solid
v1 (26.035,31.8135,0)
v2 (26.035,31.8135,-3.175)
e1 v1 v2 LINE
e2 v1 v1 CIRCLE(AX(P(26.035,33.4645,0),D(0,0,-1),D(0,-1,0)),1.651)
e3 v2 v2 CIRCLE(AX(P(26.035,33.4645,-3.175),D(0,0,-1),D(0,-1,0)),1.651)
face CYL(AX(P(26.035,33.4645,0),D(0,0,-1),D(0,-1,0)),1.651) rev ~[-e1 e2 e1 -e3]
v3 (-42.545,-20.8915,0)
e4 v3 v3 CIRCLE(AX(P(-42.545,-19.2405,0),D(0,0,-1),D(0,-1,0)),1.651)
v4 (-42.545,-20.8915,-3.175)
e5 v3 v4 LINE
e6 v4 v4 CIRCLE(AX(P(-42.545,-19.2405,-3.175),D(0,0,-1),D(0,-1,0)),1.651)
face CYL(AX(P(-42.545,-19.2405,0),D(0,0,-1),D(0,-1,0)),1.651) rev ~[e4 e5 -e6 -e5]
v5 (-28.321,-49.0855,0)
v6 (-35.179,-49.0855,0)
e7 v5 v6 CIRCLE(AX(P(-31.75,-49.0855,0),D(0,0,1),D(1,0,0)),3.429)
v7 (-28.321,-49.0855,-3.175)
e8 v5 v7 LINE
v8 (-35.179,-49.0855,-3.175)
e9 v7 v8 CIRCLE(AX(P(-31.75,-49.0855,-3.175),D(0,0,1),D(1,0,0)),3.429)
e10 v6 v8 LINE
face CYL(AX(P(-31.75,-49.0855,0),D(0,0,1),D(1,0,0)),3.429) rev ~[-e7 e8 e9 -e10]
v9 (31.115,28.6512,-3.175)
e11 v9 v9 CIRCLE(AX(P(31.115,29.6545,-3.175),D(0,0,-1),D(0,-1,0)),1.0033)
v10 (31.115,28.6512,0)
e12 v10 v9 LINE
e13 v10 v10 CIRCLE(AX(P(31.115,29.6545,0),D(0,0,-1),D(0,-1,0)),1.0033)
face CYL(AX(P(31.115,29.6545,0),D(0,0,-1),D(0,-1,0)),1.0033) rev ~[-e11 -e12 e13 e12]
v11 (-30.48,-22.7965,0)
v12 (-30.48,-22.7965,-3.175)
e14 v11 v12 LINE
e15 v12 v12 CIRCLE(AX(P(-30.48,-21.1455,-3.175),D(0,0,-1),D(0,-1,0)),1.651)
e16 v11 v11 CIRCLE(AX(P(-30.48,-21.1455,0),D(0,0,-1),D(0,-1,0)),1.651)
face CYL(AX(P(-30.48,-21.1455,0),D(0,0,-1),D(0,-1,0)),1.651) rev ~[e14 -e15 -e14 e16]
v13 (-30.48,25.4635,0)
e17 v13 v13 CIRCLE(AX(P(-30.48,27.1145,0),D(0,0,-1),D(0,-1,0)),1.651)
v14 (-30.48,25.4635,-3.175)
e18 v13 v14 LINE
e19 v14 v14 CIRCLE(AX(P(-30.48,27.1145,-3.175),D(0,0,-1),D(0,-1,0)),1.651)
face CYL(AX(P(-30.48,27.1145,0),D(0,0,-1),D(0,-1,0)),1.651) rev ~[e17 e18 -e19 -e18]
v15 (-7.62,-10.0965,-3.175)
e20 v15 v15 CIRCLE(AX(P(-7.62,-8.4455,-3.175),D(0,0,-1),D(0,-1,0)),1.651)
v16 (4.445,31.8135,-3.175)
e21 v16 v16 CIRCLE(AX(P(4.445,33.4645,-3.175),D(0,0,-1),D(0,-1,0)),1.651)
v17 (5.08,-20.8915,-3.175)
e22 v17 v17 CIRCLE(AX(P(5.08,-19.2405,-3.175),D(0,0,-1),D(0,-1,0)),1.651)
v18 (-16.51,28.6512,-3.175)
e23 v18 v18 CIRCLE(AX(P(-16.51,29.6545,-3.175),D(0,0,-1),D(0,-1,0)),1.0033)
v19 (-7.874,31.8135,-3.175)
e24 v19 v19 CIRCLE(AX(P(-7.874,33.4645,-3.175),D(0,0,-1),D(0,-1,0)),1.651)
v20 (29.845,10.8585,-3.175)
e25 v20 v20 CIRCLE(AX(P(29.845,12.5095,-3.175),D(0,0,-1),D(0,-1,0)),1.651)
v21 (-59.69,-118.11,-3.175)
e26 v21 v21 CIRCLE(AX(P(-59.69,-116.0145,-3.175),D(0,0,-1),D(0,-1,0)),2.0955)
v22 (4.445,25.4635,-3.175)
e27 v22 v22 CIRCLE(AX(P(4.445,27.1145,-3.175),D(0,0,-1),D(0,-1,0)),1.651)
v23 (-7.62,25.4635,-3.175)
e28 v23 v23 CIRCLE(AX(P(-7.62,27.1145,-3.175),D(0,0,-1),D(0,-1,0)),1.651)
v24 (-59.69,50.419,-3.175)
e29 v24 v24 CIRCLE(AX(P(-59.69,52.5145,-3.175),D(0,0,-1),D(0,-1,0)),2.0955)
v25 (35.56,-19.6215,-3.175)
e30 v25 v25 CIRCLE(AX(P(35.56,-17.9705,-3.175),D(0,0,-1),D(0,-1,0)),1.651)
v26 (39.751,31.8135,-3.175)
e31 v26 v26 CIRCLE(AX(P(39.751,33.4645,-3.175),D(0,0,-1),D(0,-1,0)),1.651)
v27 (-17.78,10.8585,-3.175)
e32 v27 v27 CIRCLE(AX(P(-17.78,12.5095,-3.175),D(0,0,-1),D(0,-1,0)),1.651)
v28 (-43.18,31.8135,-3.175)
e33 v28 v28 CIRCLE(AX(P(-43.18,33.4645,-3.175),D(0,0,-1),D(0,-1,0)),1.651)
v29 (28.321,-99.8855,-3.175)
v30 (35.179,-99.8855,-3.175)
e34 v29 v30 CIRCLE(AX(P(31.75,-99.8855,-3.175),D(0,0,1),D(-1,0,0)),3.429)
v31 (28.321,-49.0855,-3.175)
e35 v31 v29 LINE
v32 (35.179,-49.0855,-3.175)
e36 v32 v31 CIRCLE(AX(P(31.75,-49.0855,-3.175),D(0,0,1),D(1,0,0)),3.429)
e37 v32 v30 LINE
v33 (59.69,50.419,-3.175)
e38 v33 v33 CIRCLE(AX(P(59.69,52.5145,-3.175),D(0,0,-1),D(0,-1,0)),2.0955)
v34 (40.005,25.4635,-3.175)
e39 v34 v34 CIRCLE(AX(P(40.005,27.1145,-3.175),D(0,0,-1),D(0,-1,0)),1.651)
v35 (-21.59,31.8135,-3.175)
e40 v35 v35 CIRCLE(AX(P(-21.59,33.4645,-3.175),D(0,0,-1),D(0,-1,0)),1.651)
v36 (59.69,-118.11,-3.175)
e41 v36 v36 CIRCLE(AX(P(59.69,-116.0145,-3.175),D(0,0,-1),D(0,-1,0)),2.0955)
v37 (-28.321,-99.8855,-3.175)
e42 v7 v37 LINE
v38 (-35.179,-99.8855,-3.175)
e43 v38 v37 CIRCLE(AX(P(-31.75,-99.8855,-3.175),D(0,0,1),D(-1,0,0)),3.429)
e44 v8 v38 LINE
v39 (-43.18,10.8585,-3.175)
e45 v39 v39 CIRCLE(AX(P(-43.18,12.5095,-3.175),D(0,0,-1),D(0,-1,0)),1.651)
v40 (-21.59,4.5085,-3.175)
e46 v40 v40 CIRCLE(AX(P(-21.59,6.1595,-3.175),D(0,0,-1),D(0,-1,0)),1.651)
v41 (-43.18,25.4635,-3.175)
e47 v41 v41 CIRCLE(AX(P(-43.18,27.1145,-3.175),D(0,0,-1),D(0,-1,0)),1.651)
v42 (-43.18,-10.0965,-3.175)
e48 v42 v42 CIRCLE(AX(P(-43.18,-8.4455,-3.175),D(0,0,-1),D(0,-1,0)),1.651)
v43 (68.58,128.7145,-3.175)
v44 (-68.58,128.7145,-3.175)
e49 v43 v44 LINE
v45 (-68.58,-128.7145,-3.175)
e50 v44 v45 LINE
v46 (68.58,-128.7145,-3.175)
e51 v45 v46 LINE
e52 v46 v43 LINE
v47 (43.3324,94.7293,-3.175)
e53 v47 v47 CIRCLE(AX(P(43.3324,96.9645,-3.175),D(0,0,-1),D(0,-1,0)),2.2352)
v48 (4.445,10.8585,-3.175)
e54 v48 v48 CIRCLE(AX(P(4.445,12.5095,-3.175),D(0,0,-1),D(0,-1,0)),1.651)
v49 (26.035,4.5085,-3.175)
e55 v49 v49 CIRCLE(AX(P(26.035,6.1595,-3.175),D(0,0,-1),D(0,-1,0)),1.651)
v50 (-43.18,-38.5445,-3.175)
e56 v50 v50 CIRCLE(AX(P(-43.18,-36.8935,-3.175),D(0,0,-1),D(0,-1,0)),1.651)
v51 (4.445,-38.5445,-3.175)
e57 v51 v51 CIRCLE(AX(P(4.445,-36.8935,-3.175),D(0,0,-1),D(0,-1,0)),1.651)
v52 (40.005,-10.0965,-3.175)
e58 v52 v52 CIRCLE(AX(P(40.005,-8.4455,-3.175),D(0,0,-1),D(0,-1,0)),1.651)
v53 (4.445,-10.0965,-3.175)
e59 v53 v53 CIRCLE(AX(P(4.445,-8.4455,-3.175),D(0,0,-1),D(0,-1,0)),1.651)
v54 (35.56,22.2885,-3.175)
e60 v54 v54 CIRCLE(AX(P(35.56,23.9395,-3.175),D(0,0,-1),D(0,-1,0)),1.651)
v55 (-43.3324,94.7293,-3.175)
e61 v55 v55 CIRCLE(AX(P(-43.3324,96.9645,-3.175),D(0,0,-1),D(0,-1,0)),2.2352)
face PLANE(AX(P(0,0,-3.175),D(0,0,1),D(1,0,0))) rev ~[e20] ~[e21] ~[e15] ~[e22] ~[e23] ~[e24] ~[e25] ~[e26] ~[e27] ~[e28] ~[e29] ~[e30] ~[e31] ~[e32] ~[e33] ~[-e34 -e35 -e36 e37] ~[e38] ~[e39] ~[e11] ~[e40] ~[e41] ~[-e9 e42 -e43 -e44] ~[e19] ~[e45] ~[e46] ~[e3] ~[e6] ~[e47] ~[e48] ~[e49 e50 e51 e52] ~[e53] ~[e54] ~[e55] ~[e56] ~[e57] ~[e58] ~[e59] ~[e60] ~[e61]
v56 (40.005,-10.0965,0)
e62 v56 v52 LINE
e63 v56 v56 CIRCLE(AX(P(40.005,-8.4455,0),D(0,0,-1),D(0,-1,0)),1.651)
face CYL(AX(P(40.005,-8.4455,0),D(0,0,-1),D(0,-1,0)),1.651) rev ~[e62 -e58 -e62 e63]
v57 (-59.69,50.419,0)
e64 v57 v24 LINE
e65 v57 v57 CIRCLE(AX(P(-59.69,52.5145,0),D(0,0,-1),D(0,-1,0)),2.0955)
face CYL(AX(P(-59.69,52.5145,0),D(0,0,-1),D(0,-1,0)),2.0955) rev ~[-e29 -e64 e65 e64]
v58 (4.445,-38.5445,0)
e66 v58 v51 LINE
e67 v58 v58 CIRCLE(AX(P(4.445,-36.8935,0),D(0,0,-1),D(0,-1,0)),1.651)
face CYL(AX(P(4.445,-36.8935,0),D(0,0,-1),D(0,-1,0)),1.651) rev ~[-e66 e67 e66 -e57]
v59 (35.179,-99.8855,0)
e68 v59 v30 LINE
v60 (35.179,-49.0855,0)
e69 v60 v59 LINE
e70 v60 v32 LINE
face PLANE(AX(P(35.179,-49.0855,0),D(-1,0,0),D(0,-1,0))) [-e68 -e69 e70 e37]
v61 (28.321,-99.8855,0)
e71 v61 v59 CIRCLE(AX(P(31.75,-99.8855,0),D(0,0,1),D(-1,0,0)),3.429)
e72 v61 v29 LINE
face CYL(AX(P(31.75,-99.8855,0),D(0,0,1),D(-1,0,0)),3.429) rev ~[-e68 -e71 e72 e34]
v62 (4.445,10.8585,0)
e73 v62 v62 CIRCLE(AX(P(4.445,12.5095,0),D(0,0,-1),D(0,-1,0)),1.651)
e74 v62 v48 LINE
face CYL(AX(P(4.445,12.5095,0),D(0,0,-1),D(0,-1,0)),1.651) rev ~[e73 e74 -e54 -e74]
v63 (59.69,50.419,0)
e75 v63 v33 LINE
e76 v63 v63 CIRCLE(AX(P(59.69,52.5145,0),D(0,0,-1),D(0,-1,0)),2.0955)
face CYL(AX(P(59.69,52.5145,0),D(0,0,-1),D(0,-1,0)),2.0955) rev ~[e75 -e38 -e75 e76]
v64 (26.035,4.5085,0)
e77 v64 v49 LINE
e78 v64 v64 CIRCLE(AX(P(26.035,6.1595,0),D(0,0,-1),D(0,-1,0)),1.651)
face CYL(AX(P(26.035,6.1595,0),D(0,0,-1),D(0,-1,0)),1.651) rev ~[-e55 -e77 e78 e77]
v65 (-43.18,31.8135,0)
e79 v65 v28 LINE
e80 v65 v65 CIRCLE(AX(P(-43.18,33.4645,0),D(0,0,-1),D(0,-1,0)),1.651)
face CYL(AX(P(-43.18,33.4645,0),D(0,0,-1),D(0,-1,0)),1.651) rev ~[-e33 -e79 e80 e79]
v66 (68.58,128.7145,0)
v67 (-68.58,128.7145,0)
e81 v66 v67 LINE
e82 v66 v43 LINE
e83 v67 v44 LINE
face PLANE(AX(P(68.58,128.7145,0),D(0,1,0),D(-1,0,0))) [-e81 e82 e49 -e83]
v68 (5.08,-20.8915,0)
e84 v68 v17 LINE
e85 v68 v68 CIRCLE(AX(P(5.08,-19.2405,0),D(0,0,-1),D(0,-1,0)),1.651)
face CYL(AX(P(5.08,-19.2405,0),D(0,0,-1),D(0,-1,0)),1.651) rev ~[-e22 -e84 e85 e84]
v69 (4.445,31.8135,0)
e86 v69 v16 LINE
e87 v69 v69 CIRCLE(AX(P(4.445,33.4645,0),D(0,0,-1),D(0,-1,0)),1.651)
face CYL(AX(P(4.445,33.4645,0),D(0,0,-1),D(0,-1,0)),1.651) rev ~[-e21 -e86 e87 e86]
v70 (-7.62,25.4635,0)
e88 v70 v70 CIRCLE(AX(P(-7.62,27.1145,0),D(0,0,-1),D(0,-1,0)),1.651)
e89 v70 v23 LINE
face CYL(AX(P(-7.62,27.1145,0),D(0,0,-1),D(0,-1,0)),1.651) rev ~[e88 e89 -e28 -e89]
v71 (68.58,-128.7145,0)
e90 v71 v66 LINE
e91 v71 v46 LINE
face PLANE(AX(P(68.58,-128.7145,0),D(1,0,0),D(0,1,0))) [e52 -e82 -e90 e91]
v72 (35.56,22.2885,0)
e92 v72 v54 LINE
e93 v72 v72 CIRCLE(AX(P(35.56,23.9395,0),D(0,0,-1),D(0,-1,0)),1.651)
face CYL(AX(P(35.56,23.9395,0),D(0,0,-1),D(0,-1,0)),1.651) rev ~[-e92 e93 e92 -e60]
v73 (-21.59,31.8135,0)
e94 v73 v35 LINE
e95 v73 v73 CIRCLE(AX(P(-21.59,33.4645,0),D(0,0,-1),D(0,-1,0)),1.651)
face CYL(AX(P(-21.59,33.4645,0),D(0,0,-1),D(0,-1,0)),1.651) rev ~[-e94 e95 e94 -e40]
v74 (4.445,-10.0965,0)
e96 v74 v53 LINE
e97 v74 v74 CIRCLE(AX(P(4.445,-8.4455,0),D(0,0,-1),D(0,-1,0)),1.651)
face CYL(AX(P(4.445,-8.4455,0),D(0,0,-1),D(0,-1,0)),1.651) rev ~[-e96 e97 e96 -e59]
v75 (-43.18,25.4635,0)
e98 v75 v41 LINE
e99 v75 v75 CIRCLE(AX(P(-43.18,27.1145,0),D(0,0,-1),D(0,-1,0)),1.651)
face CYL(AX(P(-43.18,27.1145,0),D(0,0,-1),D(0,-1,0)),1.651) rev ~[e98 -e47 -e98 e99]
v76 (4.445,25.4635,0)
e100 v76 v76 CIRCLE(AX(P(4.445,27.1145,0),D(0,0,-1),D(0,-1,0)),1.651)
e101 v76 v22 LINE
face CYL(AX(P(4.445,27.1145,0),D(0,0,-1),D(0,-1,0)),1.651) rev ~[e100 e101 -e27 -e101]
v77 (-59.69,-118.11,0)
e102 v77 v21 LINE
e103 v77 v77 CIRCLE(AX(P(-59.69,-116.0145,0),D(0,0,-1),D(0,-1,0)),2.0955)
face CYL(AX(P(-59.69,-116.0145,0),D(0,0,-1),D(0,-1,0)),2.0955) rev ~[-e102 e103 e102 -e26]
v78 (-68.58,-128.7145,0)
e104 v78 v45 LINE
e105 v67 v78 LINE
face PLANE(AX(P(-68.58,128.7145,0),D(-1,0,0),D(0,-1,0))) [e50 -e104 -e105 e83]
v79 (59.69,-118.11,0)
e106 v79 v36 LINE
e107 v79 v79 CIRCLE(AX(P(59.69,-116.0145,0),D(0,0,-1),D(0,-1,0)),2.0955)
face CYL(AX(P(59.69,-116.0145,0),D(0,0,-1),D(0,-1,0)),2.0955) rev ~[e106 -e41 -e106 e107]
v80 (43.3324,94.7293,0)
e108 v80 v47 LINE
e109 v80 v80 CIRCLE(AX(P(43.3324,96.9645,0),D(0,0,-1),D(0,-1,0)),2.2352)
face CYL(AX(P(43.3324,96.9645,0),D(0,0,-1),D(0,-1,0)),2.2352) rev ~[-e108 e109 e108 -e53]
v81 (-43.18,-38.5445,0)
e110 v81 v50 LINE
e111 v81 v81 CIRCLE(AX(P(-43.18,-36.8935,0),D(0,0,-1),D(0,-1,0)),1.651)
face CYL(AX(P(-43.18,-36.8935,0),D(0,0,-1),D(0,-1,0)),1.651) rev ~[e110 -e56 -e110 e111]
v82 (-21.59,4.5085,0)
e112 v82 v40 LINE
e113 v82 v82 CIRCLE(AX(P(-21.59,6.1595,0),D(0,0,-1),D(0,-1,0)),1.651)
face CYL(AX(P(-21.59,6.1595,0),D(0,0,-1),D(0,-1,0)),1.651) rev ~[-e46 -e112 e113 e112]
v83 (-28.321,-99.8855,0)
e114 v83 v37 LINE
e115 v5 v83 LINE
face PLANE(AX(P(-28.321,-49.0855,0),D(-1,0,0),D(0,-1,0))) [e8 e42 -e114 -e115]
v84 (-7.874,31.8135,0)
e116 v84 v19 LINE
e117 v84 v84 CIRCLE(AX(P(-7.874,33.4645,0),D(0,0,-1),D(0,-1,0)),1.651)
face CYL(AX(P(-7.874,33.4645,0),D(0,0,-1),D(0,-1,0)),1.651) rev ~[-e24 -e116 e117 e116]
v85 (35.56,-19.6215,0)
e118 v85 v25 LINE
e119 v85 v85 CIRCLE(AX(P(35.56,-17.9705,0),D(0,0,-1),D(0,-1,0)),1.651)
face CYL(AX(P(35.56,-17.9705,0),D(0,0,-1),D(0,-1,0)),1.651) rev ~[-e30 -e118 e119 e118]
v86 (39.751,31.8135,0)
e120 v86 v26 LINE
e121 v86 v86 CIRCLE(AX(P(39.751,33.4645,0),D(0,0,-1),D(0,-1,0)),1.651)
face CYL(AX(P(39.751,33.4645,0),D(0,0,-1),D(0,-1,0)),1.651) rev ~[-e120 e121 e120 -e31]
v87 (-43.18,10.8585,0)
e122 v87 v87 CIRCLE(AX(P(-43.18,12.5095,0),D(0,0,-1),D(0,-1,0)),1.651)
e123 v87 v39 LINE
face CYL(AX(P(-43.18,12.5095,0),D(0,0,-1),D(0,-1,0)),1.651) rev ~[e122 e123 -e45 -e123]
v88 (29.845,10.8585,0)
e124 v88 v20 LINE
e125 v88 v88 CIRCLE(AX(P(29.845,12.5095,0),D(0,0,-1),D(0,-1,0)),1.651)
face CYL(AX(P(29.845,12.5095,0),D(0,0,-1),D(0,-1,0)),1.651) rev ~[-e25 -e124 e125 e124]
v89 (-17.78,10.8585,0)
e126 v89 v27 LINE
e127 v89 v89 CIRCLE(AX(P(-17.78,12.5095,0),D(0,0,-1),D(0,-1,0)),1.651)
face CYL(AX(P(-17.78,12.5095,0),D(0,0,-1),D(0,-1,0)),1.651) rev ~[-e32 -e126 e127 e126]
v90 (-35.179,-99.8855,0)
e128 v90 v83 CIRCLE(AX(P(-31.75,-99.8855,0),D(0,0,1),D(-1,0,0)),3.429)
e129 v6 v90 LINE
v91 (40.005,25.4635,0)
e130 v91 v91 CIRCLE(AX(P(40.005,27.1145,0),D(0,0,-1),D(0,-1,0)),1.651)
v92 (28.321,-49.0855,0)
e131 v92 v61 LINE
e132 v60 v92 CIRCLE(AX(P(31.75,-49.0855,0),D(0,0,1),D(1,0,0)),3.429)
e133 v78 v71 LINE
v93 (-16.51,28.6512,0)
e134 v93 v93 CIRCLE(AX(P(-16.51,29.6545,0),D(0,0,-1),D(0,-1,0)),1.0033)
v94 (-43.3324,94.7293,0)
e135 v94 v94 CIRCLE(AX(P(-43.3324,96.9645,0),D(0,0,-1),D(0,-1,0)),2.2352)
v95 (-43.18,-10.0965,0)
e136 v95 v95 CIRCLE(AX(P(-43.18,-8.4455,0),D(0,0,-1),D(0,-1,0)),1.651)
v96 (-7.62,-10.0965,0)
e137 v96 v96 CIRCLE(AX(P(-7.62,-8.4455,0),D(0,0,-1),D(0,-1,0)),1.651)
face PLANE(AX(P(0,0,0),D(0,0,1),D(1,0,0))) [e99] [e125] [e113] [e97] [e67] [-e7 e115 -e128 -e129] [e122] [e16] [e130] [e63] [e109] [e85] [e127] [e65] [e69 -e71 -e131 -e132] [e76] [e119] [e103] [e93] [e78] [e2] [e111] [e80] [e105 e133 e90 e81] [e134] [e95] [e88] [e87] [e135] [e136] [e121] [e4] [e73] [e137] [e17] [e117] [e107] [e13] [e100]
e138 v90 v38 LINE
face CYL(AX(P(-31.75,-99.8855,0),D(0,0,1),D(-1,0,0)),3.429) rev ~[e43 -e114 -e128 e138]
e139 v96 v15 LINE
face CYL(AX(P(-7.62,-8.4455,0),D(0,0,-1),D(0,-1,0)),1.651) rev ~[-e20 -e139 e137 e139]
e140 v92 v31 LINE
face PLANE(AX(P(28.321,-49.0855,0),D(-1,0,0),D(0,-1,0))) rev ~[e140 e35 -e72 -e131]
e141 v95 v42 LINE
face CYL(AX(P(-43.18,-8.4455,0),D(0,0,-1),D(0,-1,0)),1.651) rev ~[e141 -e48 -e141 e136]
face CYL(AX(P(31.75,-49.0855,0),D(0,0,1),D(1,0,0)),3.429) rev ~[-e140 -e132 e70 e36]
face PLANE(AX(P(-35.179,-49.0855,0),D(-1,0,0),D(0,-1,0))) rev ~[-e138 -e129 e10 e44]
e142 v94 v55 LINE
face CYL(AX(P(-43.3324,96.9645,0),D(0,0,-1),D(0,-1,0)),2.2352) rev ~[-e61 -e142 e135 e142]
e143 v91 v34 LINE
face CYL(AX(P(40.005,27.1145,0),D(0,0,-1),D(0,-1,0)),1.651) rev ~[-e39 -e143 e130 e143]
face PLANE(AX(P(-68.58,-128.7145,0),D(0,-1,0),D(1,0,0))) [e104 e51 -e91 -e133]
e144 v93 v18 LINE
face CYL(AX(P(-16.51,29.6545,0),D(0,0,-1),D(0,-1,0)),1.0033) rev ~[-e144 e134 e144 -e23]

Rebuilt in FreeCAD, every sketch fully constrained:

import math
import FreeCAD as App
import Part
import Sketcher

V = App.Vector
Q = App.Units.Quantity


def add_polygon(sketch, points):
    """Adds a closed chain of lines whose ends are joined by coincident constraints."""
    first, n = sketch.GeometryCount, len(points)
    for a, b in zip(points, points[1:] + points[:1]):
        sketch.addGeometry(Part.LineSegment(App.Vector(*a, 0), App.Vector(*b, 0)), False)
    for i in range(n):
        sketch.addConstraint(Sketcher.Constraint("Coincident", first + i, 2, first + (i + 1) % n, 1))

doc = App.newDocument("Part")
body = doc.addObject("PartDesign::Body", "Body")

# Sketch on XY plane
sketch1 = doc.addObject("Sketcher::SketchObject", "Sketch")
body.addObject(sketch1)
sketch1.AttachmentSupport = (doc.XY_Plane, [""])
sketch1.MapMode = "FlatFace"
add_polygon(sketch1, [(-68.58, 128.7145), (-68.58, -128.7145), (68.58, -128.7145), (68.58, 128.7145)])  # lines 0-3
sketch1.addConstraint([
    Sketcher.Constraint("Vertical", 0),
    Sketcher.Constraint("Horizontal", 1),
    Sketcher.Constraint("Vertical", 2),
    Sketcher.Constraint("Horizontal", 3),
    Sketcher.Constraint("Symmetric", 0, 2, 2, 2, -1, 1),
    Sketcher.Constraint("DistanceX", 1, 1, 1, 2, Q("5.4 in")),
    Sketcher.Constraint("DistanceY", 0, 2, 0, 1, Q("10.135 in")),
])
pad1 = doc.addObject("PartDesign::Pad", "Pad")
body.addObject(pad1)
pad1.Profile = sketch1
pad1.Length = Q("0.125 in")
pad1.Reversed = True

# Sketch on XY plane
sketch2 = doc.addObject("Sketcher::SketchObject", "Sketch001")
body.addObject(sketch2)
sketch2.AttachmentSupport = (doc.XY_Plane, [""])
sketch2.MapMode = "FlatFace"
sketch2.addGeometry([
    Part.Circle(V(-59.69, 52.5145, 0), V(0, 0, 1), 2.0955),
    Part.Circle(V(59.69, 52.5145, 0), V(0, 0, 1), 2.0955),
    Part.Circle(V(-59.69, -116.0145, 0), V(0, 0, 1), 2.0955),
    Part.Circle(V(59.69, -116.0145, 0), V(0, 0, 1), 2.0955),
], False)
sketch2.addConstraint([
    Sketcher.Constraint("Equal", 0, 1),
    Sketcher.Constraint("Equal", 1, 2),
    Sketcher.Constraint("Equal", 2, 3),
    Sketcher.Constraint("Symmetric", 0, 3, 1, 3, -2),
    Sketcher.Constraint("Symmetric", 2, 3, 3, 3, -2),
    Sketcher.Constraint("Vertical", 0, 3, 2, 3),
    Sketcher.Constraint("Diameter", 0, Q("0.165 in")),
    Sketcher.Constraint("DistanceX", 0, 3, 1, 3, Q("4.7 in")),
    Sketcher.Constraint("DistanceY", 2, 3, 0, 3, Q("6.635 in")),
    Sketcher.Constraint("DistanceY", -1, 1, 0, 3, Q("2.0675 in")),
])
doc.recompute()
hole = doc.addObject("PartDesign::Hole", "Hole")
body.addObject(hole)
hole.Profile = sketch2
hole.ThreadType = "None"
hole.Diameter = Q("0.165 in")
hole.DepthType = "ThroughAll"

# Sketch on XY plane
sketch3 = doc.addObject("Sketcher::SketchObject", "Sketch002")
body.addObject(sketch3)
sketch3.AttachmentSupport = (doc.XY_Plane, [""])
sketch3.MapMode = "FlatFace"
sketch3.addGeometry([
    Part.ArcOfCircle(Part.Circle(V(-31.75, -49.0855, 0), V(0, 0, 1), 3.429), math.radians(0), math.radians(180)),  # 0
    Part.LineSegment(V(-35.179, -49.0855, 0), V(-35.179, -99.8855, 0)),  # 1
    Part.ArcOfCircle(Part.Circle(V(-31.75, -99.8855, 0), V(0, 0, 1), 3.429), math.radians(180), math.radians(360)),  # 2
    Part.LineSegment(V(-28.321, -99.8855, 0), V(-28.321, -49.0855, 0)),  # 3
    Part.ArcOfCircle(Part.Circle(V(31.75, -49.0855, 0), V(0, 0, 1), 3.429), math.radians(0), math.radians(180)),  # 4
    Part.LineSegment(V(28.321, -49.0855, 0), V(28.321, -99.8855, 0)),  # 5
    Part.ArcOfCircle(Part.Circle(V(31.75, -99.8855, 0), V(0, 0, 1), 3.429), math.radians(180), math.radians(360)),  # 6
    Part.LineSegment(V(35.179, -99.8855, 0), V(35.179, -49.0855, 0)),  # 7
], False)
sketch3.addConstraint([
    Sketcher.Constraint("Tangent", 0, 2, 1, 1),
    Sketcher.Constraint("Tangent", 1, 2, 2, 1),
    Sketcher.Constraint("Tangent", 2, 2, 3, 1),
    Sketcher.Constraint("Tangent", 3, 2, 0, 1),
    Sketcher.Constraint("Tangent", 4, 2, 5, 1),
    Sketcher.Constraint("Tangent", 5, 2, 6, 1),
    Sketcher.Constraint("Tangent", 6, 2, 7, 1),
    Sketcher.Constraint("Tangent", 7, 2, 4, 1),
    Sketcher.Constraint("Vertical", 1),
    Sketcher.Constraint("Vertical", 3),
    Sketcher.Constraint("Vertical", 5),
    Sketcher.Constraint("Vertical", 7),
    Sketcher.Constraint("Equal", 2, 4),
    Sketcher.Constraint("Symmetric", 0, 3, 4, 3, -2),
    Sketcher.Constraint("Horizontal", 2, 3, 6, 3),
    Sketcher.Constraint("DistanceY", 1, 2, 1, 1, Q("2 in")),
    Sketcher.Constraint("Radius", 0, Q("0.135 in")),
    Sketcher.Constraint("DistanceX", 0, 3, 4, 3, Q("2.5 in")),
    Sketcher.Constraint("DistanceY", 0, 3, -1, 1, Q("1.9325 in")),
])
pocket1 = doc.addObject("PartDesign::Pocket", "Pocket")
body.addObject(pocket1)
pocket1.Profile = sketch3
pocket1.Length = Q("0.125 in")

# Sketch on XY plane
sketch4 = doc.addObject("Sketcher::SketchObject", "Sketch003")
body.addObject(sketch4)
sketch4.AttachmentSupport = (doc.XY_Plane, [""])
sketch4.MapMode = "FlatFace"
sketch4.addGeometry([
    Part.Circle(V(-43.3324, 96.9645, 0), V(0, 0, 1), 2.2352),
    Part.Circle(V(43.3324, 96.9645, 0), V(0, 0, 1), 2.2352),
], False)
sketch4.addConstraint([
    Sketcher.Constraint("Equal", 0, 1),
    Sketcher.Constraint("Symmetric", 0, 3, 1, 3, -2),
    Sketcher.Constraint("Diameter", 0, Q("0.176 in")),
    Sketcher.Constraint("DistanceX", 0, 3, -1, 1, Q("1.706 in")),
    Sketcher.Constraint("DistanceY", -1, 1, 0, 3, Q("3.8175 in")),
])
doc.recompute()
hole2 = doc.addObject("PartDesign::Hole", "Hole001")
body.addObject(hole2)
hole2.Profile = sketch4
hole2.ThreadType = "None"
hole2.Diameter = Q("0.176 in")
hole2.DepthType = "ThroughAll"

# Sketch on XY plane
sketch5 = doc.addObject("Sketcher::SketchObject", "Sketch004")
body.addObject(sketch5)
sketch5.AttachmentSupport = (doc.XY_Plane, [""])
sketch5.MapMode = "FlatFace"
sketch5.addGeometry([
    Part.Circle(V(-43.18, 27.1145, 0), V(0, 0, 1), 1.651),  # 0
    Part.Circle(V(-43.18, -8.4455, 0), V(0, 0, 1), 1.651),  # 1
    Part.Circle(V(-7.62, -8.4455, 0), V(0, 0, 1), 1.651),  # 2
    Part.Circle(V(-7.62, 27.1145, 0), V(0, 0, 1), 1.651),  # 3
    Part.Circle(V(4.445, 27.1145, 0), V(0, 0, 1), 1.651),  # 4
    Part.Circle(V(4.445, -8.4455, 0), V(0, 0, 1), 1.651),  # 5
    Part.Circle(V(40.005, -8.4455, 0), V(0, 0, 1), 1.651),  # 6
    Part.Circle(V(40.005, 27.1145, 0), V(0, 0, 1), 1.651),  # 7
], False)
sketch5.addConstraint([
    Sketcher.Constraint("Equal", 0, 1),
    Sketcher.Constraint("Equal", 1, 2),
    Sketcher.Constraint("Equal", 2, 3),
    Sketcher.Constraint("Equal", 3, 4),
    Sketcher.Constraint("Equal", 4, 5),
    Sketcher.Constraint("Equal", 5, 6),
    Sketcher.Constraint("Equal", 6, 7),
    Sketcher.Constraint("Horizontal", 1, 3, 2, 3),
    Sketcher.Constraint("Horizontal", 0, 3, 3, 3),
    Sketcher.Constraint("Horizontal", 3, 3, 4, 3),
    Sketcher.Constraint("Horizontal", 2, 3, 5, 3),
    Sketcher.Constraint("Horizontal", 5, 3, 6, 3),
    Sketcher.Constraint("Horizontal", 4, 3, 7, 3),
    Sketcher.Constraint("Vertical", 0, 3, 1, 3),
    Sketcher.Constraint("Vertical", 2, 3, 3, 3),
    Sketcher.Constraint("Vertical", 4, 3, 5, 3),
    Sketcher.Constraint("Vertical", 6, 3, 7, 3),
    Sketcher.Constraint("Diameter", 0, Q("0.13 in")),
    Sketcher.Constraint("DistanceX", 0, 3, -1, 1, Q("1.7 in")),
    Sketcher.Constraint("DistanceX", 2, 3, -1, 1, Q("0.3 in")),
    Sketcher.Constraint("DistanceY", 1, 3, 0, 3, Q("1.4 in")),
    Sketcher.Constraint("DistanceX", 5, 3, 6, 3, Q("1.4 in")),
    Sketcher.Constraint("DistanceX", -1, 1, 4, 3, Q("0.175 in")),
    Sketcher.Constraint("DistanceY", -1, 1, 0, 3, Q("1.0675 in")),
])
doc.recompute()
hole3 = doc.addObject("PartDesign::Hole", "Hole002")
body.addObject(hole3)
hole3.Profile = sketch5
hole3.ThreadType = "None"
hole3.Diameter = Q("0.13 in")
hole3.DepthType = "ThroughAll"

# Sketch on XY plane
sketch6 = doc.addObject("Sketcher::SketchObject", "Sketch005")
body.addObject(sketch6)
sketch6.AttachmentSupport = (doc.XY_Plane, [""])
sketch6.MapMode = "FlatFace"
sketch6.addGeometry([
    Part.Circle(V(-43.18, -36.8935, 0), V(0, 0, 1), 1.651),
    Part.Circle(V(4.445, -36.8935, 0), V(0, 0, 1), 1.651),
    Part.Circle(V(39.751, 33.4645, 0), V(0, 0, 1), 1.651),
    Part.Circle(V(-7.874, 33.4645, 0), V(0, 0, 1), 1.651),
], False)
sketch6.addConstraint([
    Sketcher.Constraint("Equal", 0, 1),
    Sketcher.Constraint("Equal", 1, 2),
    Sketcher.Constraint("Equal", 2, 3),
    Sketcher.Constraint("Horizontal", 0, 3, 1, 3),
    Sketcher.Constraint("Horizontal", 2, 3, 3, 3),
    Sketcher.Constraint("Diameter", 0, Q("0.13 in")),
    Sketcher.Constraint("DistanceX", 0, 3, -1, 1, Q("1.7 in")),
    Sketcher.Constraint("DistanceX", 3, 3, -1, 1, Q("0.31 in")),
    Sketcher.Constraint("DistanceX", 1, 3, 2, 3, Q("1.39 in")),
    Sketcher.Constraint("DistanceY", 1, 3, 2, 3, Q("2.77 in")),
    Sketcher.Constraint("DistanceX", -1, 1, 1, 3, Q("0.175 in")),
    Sketcher.Constraint("DistanceY", 0, 3, -1, 1, Q("1.4525 in")),
])
doc.recompute()
hole4 = doc.addObject("PartDesign::Hole", "Hole003")
body.addObject(hole4)
hole4.Profile = sketch6
hole4.ThreadType = "None"
hole4.Diameter = Q("0.13 in")
hole4.DepthType = "ThroughAll"

# Sketch on XY plane
sketch7 = doc.addObject("Sketcher::SketchObject", "Sketch006")
body.addObject(sketch7)
sketch7.AttachmentSupport = (doc.XY_Plane, [""])
sketch7.MapMode = "FlatFace"
sketch7.addGeometry([
    Part.Circle(V(-17.78, 12.5095, 0), V(0, 0, 1), 1.651),
    Part.Circle(V(29.845, 12.5095, 0), V(0, 0, 1), 1.651),
], False)
sketch7.addConstraint([
    Sketcher.Constraint("Equal", 0, 1),
    Sketcher.Constraint("Horizontal", 0, 3, 1, 3),
    Sketcher.Constraint("Diameter", 0, Q("0.13 in")),
    Sketcher.Constraint("DistanceX", 0, 3, -1, 1, Q("0.7 in")),
    Sketcher.Constraint("DistanceX", -1, 1, 1, 3, Q("1.175 in")),
    Sketcher.Constraint("DistanceY", -1, 1, 0, 3, Q("0.4925 in")),
])
doc.recompute()
hole5 = doc.addObject("PartDesign::Hole", "Hole004")
body.addObject(hole5)
hole5.Profile = sketch7
hole5.ThreadType = "None"
hole5.Diameter = Q("0.13 in")
hole5.DepthType = "ThroughAll"

# Sketch on XY plane
sketch8 = doc.addObject("Sketcher::SketchObject", "Sketch007")
body.addObject(sketch8)
sketch8.AttachmentSupport = (doc.XY_Plane, [""])
sketch8.MapMode = "FlatFace"
sketch8.addGeometry([
    Part.Circle(V(-43.18, 12.5095, 0), V(0, 0, 1), 1.651),
    Part.Circle(V(4.445, 12.5095, 0), V(0, 0, 1), 1.651),
], False)
sketch8.addConstraint([
    Sketcher.Constraint("Equal", 0, 1),
    Sketcher.Constraint("Horizontal", 0, 3, 1, 3),
    Sketcher.Constraint("Diameter", 0, Q("0.13 in")),
    Sketcher.Constraint("DistanceX", 0, 3, -1, 1, Q("1.7 in")),
    Sketcher.Constraint("DistanceX", -1, 1, 1, 3, Q("0.175 in")),
    Sketcher.Constraint("DistanceY", -1, 1, 0, 3, Q("0.4925 in")),
])
doc.recompute()
hole6 = doc.addObject("PartDesign::Hole", "Hole005")
body.addObject(hole6)
hole6.Profile = sketch8
hole6.ThreadType = "None"
hole6.Diameter = Q("0.13 in")
hole6.DepthType = "ThroughAll"

# Sketch on XY plane
sketch9 = doc.addObject("Sketcher::SketchObject", "Sketch008")
body.addObject(sketch9)
sketch9.AttachmentSupport = (doc.XY_Plane, [""])
sketch9.MapMode = "FlatFace"
sketch9.addGeometry([
    Part.Circle(V(-43.18, 33.4645, 0), V(0, 0, 1), 1.0033),
    Part.Circle(V(4.445, 33.4645, 0), V(0, 0, 1), 1.0033),
    Part.Circle(V(-16.51, 29.6545, 0), V(0, 0, 1), 1.0033),
], False)
sketch9.addConstraint([
    Sketcher.Constraint("Equal", 0, 1),
    Sketcher.Constraint("Equal", 1, 2),
    Sketcher.Constraint("Horizontal", 0, 3, 1, 3),
    Sketcher.Constraint("Diameter", 0, Q("0.079 in")),
    Sketcher.Constraint("DistanceX", 0, 3, -1, 1, Q("1.7 in")),
    Sketcher.Constraint("DistanceX", 2, 3, -1, 1, Q("0.65 in")),
    Sketcher.Constraint("DistanceY", 2, 3, 1, 3, Q("0.15 in")),
    Sketcher.Constraint("DistanceX", -1, 1, 1, 3, Q("0.175 in")),
    Sketcher.Constraint("DistanceY", -1, 1, 0, 3, Q("1.3175 in")),
])
doc.recompute()
hole7 = doc.addObject("PartDesign::Hole", "Hole006")
body.addObject(hole7)
hole7.Profile = sketch9
hole7.ThreadType = "None"
hole7.Diameter = Q("0.079 in")
hole7.DepthType = "ThroughAll"

# Sketch on XY plane
sketch10 = doc.addObject("Sketcher::SketchObject", "Sketch009")
body.addObject(sketch10)
sketch10.AttachmentSupport = (doc.XY_Plane, [""])
sketch10.MapMode = "FlatFace"
sketch10.addGeometry(Part.Circle(V(31.115, 29.6545, 0), V(0, 0, 1), 1.0033), False)
sketch10.addConstraint([
    Sketcher.Constraint("Diameter", 0, Q("0.079 in")),
    Sketcher.Constraint("DistanceX", -1, 1, 0, 3, Q("1.225 in")),
    Sketcher.Constraint("DistanceY", -1, 1, 0, 3, Q("1.1675 in")),
])
doc.recompute()
hole8 = doc.addObject("PartDesign::Hole", "Hole007")
body.addObject(hole8)
hole8.Profile = sketch10
hole8.ThreadType = "None"
hole8.Diameter = Q("0.079 in")
hole8.DepthType = "ThroughAll"

# Sketch on XY plane
sketch11 = doc.addObject("Sketcher::SketchObject", "Sketch010")
body.addObject(sketch11)
sketch11.AttachmentSupport = (doc.XY_Plane, [""])
sketch11.MapMode = "FlatFace"
sketch11.addGeometry([
    Part.Circle(V(-30.48, 27.1145, 0), V(0, 0, 1), 1.651),
    Part.Circle(V(-30.48, -21.1455, 0), V(0, 0, 1), 1.651),
    Part.Circle(V(35.56, -17.9705, 0), V(0, 0, 1), 1.651),
    Part.Circle(V(35.56, 23.9395, 0), V(0, 0, 1), 1.651),
], False)
sketch11.addConstraint([
    Sketcher.Constraint("Equal", 0, 1),
    Sketcher.Constraint("Equal", 1, 2),
    Sketcher.Constraint("Equal", 2, 3),
    Sketcher.Constraint("Vertical", 0, 3, 1, 3),
    Sketcher.Constraint("Vertical", 2, 3, 3, 3),
    Sketcher.Constraint("Diameter", 0, Q("0.13 in")),
    Sketcher.Constraint("DistanceX", 0, 3, -1, 1, Q("1.2 in")),
    Sketcher.Constraint("DistanceX", -1, 1, 2, 3, Q("1.4 in")),
    Sketcher.Constraint("DistanceY", 1, 3, 0, 3, Q("1.9 in")),
    Sketcher.Constraint("DistanceY", 2, 3, 3, 3, Q("1.65 in")),
    Sketcher.Constraint("DistanceY", 1, 3, 2, 3, Q("0.125 in")),
    Sketcher.Constraint("DistanceY", -1, 1, 0, 3, Q("1.0675 in")),
])
doc.recompute()
hole9 = doc.addObject("PartDesign::Hole", "Hole008")
body.addObject(hole9)
hole9.Profile = sketch11
hole9.ThreadType = "None"
hole9.Diameter = Q("0.13 in")
hole9.DepthType = "ThroughAll"

# Sketch on XY plane
sketch12 = doc.addObject("Sketcher::SketchObject", "Sketch011")
body.addObject(sketch12)
sketch12.AttachmentSupport = (doc.XY_Plane, [""])
sketch12.MapMode = "FlatFace"
sketch12.addGeometry([
    Part.Circle(V(-42.545, -19.2405, 0), V(0, 0, 1), 1.651),  # 0
    Part.Circle(V(-21.59, 33.4645, 0), V(0, 0, 1), 1.651),  # 1
    Part.Circle(V(26.035, 33.4645, 0), V(0, 0, 1), 1.651),  # 2
    Part.Circle(V(5.08, -19.2405, 0), V(0, 0, 1), 1.651),  # 3
    Part.Circle(V(4.445, 33.4645, 0), V(0, 0, 1), 1.651),  # 4
    Part.Circle(V(-43.18, 33.4645, 0), V(0, 0, 1), 1.651),  # 5
    Part.Circle(V(-21.59, 6.1595, 0), V(0, 0, 1), 1.651),  # 6
    Part.Circle(V(26.035, 6.1595, 0), V(0, 0, 1), 1.651),  # 7
], False)
sketch12.addConstraint([
    Sketcher.Constraint("Equal", 0, 1),
    Sketcher.Constraint("Equal", 1, 2),
    Sketcher.Constraint("Equal", 2, 3),
    Sketcher.Constraint("Equal", 3, 4),
    Sketcher.Constraint("Equal", 4, 5),
    Sketcher.Constraint("Equal", 5, 6),
    Sketcher.Constraint("Equal", 6, 7),
    Sketcher.Constraint("Horizontal", 1, 3, 2, 3),
    Sketcher.Constraint("Horizontal", 0, 3, 3, 3),
    Sketcher.Constraint("Horizontal", 2, 3, 4, 3),
    Sketcher.Constraint("Horizontal", 4, 3, 5, 3),
    Sketcher.Constraint("Horizontal", 6, 3, 7, 3),
    Sketcher.Constraint("Vertical", 1, 3, 6, 3),
    Sketcher.Constraint("Vertical", 2, 3, 7, 3),
    Sketcher.Constraint("Diameter", 0, Q("0.13 in")),
    Sketcher.Constraint("DistanceY", 0, 3, 6, 3, Q("1 in")),
    Sketcher.Constraint("DistanceX", -1, 1, 3, 3, Q("0.2 in")),
    Sketcher.Constraint("DistanceX", 5, 3, -1, 1, Q("1.7 in")),
    Sketcher.Constraint("DistanceX", 0, 3, 2, 3, Q("2.7 in")),
    Sketcher.Constraint("DistanceX", 1, 3, -1, 1, Q("0.85 in")),
    Sketcher.Constraint("DistanceX", 4, 3, 2, 3, Q("0.85 in")),
    Sketcher.Constraint("DistanceX", 0, 3, -1, 1, Q("1.675 in")),
    Sketcher.Constraint("DistanceY", 0, 3, 1, 3, Q("2.075 in")),
    Sketcher.Constraint("DistanceY", 0, 3, -1, 1, Q("0.7575 in")),
])
doc.recompute()
hole10 = doc.addObject("PartDesign::Hole", "Hole009")
body.addObject(hole10)
hole10.Profile = sketch12
hole10.ThreadType = "None"
hole10.Diameter = Q("0.13 in")
hole10.DepthType = "ThroughAll"

doc.recompute()
